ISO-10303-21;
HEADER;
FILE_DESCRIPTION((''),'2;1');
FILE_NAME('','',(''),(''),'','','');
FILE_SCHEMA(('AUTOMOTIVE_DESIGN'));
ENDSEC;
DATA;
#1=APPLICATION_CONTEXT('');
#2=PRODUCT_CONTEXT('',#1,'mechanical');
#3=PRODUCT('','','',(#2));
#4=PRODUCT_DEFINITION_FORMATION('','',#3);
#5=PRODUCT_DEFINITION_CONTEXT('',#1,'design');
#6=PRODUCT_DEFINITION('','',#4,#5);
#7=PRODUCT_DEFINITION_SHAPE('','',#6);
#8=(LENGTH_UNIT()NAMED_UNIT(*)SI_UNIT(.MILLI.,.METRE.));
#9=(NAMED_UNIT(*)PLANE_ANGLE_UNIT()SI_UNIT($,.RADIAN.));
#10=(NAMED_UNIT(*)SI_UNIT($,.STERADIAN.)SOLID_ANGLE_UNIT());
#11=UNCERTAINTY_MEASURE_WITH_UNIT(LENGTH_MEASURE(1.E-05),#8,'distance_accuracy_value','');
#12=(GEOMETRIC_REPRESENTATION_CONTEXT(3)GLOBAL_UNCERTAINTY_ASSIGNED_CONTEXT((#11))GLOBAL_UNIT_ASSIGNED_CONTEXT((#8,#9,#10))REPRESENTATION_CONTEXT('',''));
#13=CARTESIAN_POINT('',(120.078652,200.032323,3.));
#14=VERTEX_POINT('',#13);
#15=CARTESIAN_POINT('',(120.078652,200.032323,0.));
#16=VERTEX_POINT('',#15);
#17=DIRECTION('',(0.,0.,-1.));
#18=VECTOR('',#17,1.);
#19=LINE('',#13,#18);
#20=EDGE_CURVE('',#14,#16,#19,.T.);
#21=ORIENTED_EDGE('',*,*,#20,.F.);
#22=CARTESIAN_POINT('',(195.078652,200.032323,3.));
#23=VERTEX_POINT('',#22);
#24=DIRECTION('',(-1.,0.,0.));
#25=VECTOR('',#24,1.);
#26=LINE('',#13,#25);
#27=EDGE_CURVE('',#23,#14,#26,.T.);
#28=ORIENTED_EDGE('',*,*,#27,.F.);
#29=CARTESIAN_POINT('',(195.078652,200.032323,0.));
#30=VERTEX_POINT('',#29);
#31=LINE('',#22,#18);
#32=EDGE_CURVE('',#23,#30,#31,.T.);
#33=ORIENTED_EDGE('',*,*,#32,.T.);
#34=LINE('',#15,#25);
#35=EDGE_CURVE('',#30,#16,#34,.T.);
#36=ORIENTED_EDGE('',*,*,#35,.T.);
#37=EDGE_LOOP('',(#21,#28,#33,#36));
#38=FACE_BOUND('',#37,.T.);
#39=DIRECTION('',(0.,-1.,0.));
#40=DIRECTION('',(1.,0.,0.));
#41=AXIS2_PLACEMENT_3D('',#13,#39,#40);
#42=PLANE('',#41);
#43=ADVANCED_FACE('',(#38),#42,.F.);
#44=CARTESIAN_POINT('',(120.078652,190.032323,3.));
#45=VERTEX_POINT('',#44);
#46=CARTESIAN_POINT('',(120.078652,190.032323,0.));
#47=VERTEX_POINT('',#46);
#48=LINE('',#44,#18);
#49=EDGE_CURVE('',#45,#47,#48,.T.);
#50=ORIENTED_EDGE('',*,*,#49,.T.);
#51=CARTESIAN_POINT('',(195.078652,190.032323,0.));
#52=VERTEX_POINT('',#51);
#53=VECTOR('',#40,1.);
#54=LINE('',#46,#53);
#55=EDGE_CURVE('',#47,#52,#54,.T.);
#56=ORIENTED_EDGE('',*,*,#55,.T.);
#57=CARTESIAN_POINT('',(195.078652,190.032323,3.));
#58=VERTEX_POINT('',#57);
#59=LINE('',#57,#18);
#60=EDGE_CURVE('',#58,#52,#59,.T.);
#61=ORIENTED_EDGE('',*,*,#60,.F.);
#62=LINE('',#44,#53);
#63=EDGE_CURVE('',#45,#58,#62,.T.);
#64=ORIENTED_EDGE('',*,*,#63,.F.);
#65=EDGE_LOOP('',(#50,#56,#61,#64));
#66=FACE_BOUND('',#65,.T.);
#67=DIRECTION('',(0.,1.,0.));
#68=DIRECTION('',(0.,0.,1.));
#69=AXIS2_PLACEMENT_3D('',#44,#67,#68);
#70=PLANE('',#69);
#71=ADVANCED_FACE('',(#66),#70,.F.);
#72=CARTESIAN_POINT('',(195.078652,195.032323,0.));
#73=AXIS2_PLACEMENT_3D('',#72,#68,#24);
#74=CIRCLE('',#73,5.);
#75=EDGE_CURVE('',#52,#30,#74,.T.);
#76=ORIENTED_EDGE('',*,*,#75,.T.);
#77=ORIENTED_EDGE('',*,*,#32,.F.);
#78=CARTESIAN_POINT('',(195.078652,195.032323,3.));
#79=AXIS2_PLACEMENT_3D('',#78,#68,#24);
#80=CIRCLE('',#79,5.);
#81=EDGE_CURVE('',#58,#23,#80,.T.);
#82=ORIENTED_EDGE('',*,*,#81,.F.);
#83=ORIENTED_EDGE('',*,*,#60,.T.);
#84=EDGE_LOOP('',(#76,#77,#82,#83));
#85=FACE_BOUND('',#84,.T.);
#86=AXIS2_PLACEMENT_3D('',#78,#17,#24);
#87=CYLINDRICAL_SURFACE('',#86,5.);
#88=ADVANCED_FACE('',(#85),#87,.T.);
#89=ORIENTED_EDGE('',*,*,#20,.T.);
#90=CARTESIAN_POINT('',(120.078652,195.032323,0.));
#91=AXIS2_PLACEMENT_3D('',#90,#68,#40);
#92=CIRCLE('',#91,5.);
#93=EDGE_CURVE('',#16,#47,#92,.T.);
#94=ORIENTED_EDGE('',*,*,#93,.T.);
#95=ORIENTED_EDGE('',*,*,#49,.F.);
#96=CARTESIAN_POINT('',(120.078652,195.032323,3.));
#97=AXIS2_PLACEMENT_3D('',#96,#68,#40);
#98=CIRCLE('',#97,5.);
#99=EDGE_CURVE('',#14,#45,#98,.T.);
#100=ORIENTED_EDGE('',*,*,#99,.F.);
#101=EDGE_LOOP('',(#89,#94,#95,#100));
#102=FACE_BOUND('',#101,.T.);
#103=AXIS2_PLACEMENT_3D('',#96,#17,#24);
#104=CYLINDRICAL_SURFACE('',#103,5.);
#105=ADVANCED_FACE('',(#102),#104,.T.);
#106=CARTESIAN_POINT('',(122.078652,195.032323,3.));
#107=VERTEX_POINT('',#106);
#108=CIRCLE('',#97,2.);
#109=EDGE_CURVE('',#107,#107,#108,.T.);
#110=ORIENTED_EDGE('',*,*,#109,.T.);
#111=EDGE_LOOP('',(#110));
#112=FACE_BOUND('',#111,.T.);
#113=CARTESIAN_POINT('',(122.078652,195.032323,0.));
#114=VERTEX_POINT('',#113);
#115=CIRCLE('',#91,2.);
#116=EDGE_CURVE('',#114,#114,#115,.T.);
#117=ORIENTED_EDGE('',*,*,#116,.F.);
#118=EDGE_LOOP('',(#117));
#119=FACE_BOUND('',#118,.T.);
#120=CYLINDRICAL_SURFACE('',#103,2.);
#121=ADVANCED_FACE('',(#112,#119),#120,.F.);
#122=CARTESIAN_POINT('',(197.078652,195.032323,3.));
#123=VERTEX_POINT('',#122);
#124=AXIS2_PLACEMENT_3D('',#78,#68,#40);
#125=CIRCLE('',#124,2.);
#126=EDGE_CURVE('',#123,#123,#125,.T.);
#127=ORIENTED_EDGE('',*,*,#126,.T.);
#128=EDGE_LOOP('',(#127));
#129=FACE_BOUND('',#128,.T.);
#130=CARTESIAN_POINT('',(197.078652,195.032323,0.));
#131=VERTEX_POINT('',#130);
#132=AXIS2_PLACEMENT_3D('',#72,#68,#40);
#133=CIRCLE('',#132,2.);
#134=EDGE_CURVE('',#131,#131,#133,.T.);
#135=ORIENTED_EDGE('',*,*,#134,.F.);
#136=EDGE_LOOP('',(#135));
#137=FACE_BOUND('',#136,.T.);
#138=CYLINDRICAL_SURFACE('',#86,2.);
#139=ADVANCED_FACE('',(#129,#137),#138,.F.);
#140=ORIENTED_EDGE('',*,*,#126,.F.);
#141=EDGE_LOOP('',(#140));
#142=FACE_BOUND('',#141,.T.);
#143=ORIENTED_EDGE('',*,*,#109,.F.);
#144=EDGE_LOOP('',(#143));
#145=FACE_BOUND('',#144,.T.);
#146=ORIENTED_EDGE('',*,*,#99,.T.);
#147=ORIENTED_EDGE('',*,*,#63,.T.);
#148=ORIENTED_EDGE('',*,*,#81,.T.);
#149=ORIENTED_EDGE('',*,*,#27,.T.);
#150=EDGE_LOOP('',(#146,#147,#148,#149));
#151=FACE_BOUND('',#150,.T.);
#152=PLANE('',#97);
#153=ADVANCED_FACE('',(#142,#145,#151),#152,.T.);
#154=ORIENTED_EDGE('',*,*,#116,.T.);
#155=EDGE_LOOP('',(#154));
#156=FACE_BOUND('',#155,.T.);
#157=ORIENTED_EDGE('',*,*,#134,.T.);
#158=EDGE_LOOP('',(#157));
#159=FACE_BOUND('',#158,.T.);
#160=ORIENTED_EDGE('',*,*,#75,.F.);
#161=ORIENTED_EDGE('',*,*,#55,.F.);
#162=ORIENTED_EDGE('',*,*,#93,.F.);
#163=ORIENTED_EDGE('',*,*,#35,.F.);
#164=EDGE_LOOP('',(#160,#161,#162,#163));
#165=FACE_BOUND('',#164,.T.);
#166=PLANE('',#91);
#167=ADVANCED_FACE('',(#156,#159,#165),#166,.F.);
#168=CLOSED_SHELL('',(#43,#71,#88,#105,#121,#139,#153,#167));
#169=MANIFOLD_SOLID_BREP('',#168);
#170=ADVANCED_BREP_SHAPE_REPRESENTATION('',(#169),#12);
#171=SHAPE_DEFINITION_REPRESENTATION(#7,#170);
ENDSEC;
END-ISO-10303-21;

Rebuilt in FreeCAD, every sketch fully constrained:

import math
import FreeCAD as App
import Part
import Sketcher
from FreeCAD import Vector
Q = App.Units.Quantity

doc = App.newDocument("Part")
params = doc.addObject("Spreadsheet::Sheet", "Params")
for row, (alias, value) in enumerate([
    ("sketch1_diameter", "4 mm"),
    ("sketch1_radius", "5 mm"),
    ("sketch1_width", "75 mm"),
    ("pad1_length", "3 mm"),
], start=1):
    params.set(f"A{row}", alias)
    params.set(f"B{row}", "=" + value)
    params.setAlias(f"B{row}", alias)

body = doc.addObject("PartDesign::Body", "Body")

sketch1 = body.newObject("Sketcher::SketchObject", "Sketch")
sketch1.AttachmentSupport = (doc.getObject("XY_Plane"), [""])
sketch1.MapMode = "FlatFace"
sketch1.addGeometry([
    Part.LineSegment(Vector(120.1, 190, 0), Vector(195.1, 190, 0)),
    Part.ArcOfCircle(Part.Circle(Vector(195.1, 195, 0), Vector(0, 0, 1), 5), math.radians(-90), math.radians(90)),
    Part.LineSegment(Vector(195.1, 200, 0), Vector(120.1, 200, 0)),
    Part.ArcOfCircle(Part.Circle(Vector(120.1, 195, 0), Vector(0, 0, 1), 5), math.radians(90), math.radians(270)),
    Part.Circle(Vector(120.1, 195, 0), Vector(0, 0, 1), 2),
    Part.Circle(Vector(195.1, 195, 0), Vector(0, 0, 1), 2),
], False)
sketch1.addConstraint([
    Sketcher.Constraint("Tangent", 0, 2, 1, 1),
    Sketcher.Constraint("Tangent", 1, 2, 2, 1),
    Sketcher.Constraint("Tangent", 2, 2, 3, 1),
    Sketcher.Constraint("Tangent", 3, 2, 0, 1),
    Sketcher.Constraint("Horizontal", 0),
    Sketcher.Constraint("Horizontal", 2),
    Sketcher.Constraint("Coincident", 4, 3, 3, 3),
    Sketcher.Constraint("Coincident", 5, 3, 1, 3),
    Sketcher.Constraint("Equal", 4, 5),
    Sketcher.Constraint("Diameter", 4, Q("4 mm")),
    Sketcher.Constraint("Radius", 1, Q("5 mm")),
    Sketcher.Constraint("DistanceX", 0, 1, 0, 2, Q("75 mm")),
    Sketcher.Constraint("DistanceX", -1, 1, 1, 3, Q("195.078652 mm")),
    Sketcher.Constraint("DistanceY", -1, 1, 1, 3, Q("195.032323 mm")),
])
sketch1.setExpression("Constraints[9]", "Params.sketch1_diameter")
sketch1.setExpression("Constraints[10]", "Params.sketch1_radius")
sketch1.setExpression("Constraints[11]", "Params.sketch1_width")
pad1 = body.newObject("PartDesign::Pad", "Pad")
pad1.Profile = sketch1
pad1.setExpression("Length", "Params.pad1_length")

doc.recompute()
